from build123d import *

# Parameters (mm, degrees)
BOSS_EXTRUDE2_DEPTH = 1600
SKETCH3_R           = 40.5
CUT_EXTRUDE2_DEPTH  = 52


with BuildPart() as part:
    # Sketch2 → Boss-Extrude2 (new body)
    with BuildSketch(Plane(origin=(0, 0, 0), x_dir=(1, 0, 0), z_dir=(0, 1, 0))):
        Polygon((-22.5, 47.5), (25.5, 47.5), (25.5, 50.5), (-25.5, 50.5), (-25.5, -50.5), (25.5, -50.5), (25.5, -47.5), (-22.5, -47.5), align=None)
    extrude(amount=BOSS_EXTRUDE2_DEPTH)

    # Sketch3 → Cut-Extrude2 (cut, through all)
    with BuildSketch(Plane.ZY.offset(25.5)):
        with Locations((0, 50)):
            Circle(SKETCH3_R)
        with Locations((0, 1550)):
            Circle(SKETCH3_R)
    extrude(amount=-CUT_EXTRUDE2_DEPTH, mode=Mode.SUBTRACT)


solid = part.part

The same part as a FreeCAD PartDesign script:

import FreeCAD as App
import Part
import Sketcher
from FreeCAD import Vector
Q = App.Units.Quantity


def add_polygon(sketch, points):
    """Adds a closed chain of lines whose ends are joined by coincident constraints."""
    first, n = sketch.GeometryCount, len(points)
    for a, b in zip(points, points[1:] + points[:1]):
        sketch.addGeometry(Part.LineSegment(App.Vector(*a, 0), App.Vector(*b, 0)), False)
    for i in range(n):
        sketch.addConstraint(Sketcher.Constraint("Coincident", first + i, 2, first + (i + 1) % n, 1))

doc = App.newDocument("Part")
body = doc.addObject("PartDesign::Body", "Body")

# Sketch on XZ plane
sketch1 = body.newObject("Sketcher::SketchObject", "Sketch")
sketch1.AttachmentSupport = (doc.getObject("XZ_Plane"), [""])
sketch1.MapMode = "FlatFace"
add_polygon(sketch1, [(-22.5, -47.5), (25.5, -47.5), (25.5, -50.5), (-25.5, -50.5), (-25.5, 50.5), (25.5, 50.5), (25.5, 47.5), (-22.5, 47.5)])  # lines 0-7
sketch1.addConstraint([
    Sketcher.Constraint("Horizontal", 0),
    Sketcher.Constraint("Vertical", 1),
    Sketcher.Constraint("Horizontal", 2),
    Sketcher.Constraint("Vertical", 3),
    Sketcher.Constraint("Horizontal", 4),
    Sketcher.Constraint("Vertical", 5),
    Sketcher.Constraint("Horizontal", 6),
    Sketcher.Constraint("Vertical", 7),
    Sketcher.Constraint("Symmetric", 1, 2, 3, 2, -1, 1),
    Sketcher.Constraint("Symmetric", 0, 2, 5, 2, -1),
    Sketcher.Constraint("DistanceX", 0, 1, 0, 2, Q("48 mm")),
    Sketcher.Constraint("DistanceX", 2, 2, 2, 1, Q("51 mm")),
    Sketcher.Constraint("DistanceY", 1, 2, 1, 1, Q("3 mm")),
    Sketcher.Constraint("DistanceY", 3, 1, 3, 2, Q("101 mm")),
])
pad1 = body.newObject("PartDesign::Pad", "Pad")
pad1.Profile = sketch1
pad1.Length = 1600
pad1.Reversed = True

# Sketch on YZ plane
sketch2 = body.newObject("Sketcher::SketchObject", "Sketch001")
sketch2.AttachmentSupport = (doc.getObject("YZ_Plane"), [""])
sketch2.MapMode = "FlatFace"
sketch2.AttachmentOffset = App.Placement(Vector(0, 0, -25.5), App.Rotation())
sketch2.addGeometry([
    Part.Circle(Vector(50, 0, 0), Vector(0, 0, 1), 40),
    Part.Circle(Vector(1550, 0, 0), Vector(0, 0, 1), 40),
], False)
sketch2.addConstraint([
    Sketcher.Constraint("Equal", 0, 1),
    Sketcher.Constraint("PointOnObject", 0, 3, -1),
    Sketcher.Constraint("PointOnObject", 1, 3, -1),
    Sketcher.Constraint("Diameter", 0, Q("81 mm")),
    Sketcher.Constraint("DistanceX", -1, 1, 0, 3, Q("50 mm")),
    Sketcher.Constraint("DistanceX", -1, 1, 1, 3, Q("1550 mm")),
])
pocket1 = body.newObject("PartDesign::Pocket", "Pocket")
pocket1.Profile = sketch2
pocket1.Type = "ThroughAll"
pocket1.Reversed = True

doc.recompute()
